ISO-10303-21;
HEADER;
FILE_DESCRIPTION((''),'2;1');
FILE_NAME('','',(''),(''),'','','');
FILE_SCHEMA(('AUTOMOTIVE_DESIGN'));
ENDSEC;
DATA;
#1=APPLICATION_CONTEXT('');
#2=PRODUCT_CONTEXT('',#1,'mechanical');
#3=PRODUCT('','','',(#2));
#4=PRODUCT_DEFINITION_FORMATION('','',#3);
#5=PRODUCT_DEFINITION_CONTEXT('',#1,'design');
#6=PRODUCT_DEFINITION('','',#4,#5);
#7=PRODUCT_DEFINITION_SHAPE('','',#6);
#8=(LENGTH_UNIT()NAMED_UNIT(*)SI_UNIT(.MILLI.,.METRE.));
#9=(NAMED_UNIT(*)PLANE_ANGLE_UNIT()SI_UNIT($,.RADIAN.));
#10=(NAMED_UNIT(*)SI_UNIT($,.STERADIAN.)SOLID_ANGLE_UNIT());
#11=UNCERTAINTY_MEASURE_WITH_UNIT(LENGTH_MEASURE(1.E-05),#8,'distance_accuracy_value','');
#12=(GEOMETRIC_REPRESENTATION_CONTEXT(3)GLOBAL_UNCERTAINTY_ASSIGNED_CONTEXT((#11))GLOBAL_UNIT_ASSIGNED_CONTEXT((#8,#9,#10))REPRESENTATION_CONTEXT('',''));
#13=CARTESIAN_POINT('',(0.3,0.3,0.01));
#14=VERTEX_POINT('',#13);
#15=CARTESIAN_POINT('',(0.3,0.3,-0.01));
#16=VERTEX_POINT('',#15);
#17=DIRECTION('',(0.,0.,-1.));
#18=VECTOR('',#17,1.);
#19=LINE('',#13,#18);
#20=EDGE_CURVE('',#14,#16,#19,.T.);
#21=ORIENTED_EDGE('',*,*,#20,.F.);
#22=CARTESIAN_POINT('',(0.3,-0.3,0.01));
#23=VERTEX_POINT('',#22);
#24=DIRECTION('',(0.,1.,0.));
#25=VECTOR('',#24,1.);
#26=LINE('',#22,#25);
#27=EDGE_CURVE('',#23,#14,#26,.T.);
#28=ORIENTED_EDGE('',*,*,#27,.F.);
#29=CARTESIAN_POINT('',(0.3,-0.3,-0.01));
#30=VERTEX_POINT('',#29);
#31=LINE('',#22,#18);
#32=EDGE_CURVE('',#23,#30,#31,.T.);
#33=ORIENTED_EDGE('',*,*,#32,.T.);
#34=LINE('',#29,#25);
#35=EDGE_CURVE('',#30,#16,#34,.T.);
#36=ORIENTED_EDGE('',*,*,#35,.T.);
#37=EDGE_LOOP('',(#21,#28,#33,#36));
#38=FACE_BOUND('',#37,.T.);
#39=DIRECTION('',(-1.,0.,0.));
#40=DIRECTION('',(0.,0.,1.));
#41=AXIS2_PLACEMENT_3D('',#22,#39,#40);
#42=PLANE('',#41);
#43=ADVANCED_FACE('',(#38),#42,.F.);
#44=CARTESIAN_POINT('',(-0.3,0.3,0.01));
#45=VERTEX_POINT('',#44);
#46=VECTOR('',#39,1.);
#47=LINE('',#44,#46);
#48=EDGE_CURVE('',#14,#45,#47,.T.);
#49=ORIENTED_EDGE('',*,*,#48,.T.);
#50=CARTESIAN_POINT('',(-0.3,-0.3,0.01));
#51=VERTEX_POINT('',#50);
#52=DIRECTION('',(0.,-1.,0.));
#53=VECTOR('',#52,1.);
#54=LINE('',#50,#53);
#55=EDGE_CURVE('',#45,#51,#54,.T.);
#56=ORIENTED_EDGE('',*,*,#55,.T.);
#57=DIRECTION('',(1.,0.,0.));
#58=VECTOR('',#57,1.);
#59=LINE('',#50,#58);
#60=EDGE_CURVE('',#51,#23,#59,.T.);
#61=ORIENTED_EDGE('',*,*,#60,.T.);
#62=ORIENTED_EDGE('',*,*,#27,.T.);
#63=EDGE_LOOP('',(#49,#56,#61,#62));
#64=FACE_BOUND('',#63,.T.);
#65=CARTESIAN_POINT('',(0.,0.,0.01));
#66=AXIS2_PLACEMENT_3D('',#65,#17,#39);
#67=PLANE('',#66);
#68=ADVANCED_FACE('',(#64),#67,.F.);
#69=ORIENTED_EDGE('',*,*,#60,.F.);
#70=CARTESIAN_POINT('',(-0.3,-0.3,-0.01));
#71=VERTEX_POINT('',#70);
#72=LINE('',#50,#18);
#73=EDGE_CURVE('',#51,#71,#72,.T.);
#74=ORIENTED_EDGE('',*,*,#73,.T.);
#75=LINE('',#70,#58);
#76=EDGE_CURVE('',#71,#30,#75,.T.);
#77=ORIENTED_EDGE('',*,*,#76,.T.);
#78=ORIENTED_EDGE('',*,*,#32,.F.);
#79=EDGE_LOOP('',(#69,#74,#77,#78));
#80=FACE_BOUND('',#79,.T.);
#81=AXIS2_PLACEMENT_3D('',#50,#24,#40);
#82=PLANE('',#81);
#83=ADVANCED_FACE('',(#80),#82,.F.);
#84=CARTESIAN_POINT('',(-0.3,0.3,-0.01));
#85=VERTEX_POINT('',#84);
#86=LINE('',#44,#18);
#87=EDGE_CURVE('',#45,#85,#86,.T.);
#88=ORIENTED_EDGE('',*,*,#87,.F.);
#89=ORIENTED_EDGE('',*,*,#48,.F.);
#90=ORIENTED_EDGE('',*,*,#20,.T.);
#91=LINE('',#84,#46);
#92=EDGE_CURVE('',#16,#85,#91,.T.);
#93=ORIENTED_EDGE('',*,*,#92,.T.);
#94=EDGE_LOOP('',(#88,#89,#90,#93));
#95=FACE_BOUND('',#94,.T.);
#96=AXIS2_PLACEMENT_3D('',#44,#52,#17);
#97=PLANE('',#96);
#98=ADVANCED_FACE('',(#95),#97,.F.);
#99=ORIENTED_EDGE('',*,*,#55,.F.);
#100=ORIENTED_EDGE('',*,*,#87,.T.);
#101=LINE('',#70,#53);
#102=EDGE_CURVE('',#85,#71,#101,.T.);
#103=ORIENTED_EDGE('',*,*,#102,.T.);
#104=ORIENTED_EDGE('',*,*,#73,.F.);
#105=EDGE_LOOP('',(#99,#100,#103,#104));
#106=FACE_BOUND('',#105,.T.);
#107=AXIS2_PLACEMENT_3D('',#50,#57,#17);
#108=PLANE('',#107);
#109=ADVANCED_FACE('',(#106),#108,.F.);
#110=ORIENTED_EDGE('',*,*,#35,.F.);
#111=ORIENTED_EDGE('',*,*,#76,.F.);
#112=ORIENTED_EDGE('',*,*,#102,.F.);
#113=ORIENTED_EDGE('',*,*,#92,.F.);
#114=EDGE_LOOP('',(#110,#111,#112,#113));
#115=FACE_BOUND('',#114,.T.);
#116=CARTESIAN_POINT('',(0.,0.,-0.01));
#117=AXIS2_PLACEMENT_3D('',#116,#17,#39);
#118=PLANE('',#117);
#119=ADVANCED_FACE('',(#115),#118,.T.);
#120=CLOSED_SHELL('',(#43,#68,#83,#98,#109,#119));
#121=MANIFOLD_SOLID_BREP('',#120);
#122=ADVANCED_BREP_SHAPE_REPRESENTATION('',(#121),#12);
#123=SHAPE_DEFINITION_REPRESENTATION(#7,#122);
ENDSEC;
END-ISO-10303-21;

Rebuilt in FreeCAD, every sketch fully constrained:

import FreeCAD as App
import Part
import Sketcher

V = App.Vector
Q = App.Units.Quantity

doc = App.newDocument("Part")
params = doc.addObject("Spreadsheet::Sheet", "Params")
for row, (alias, value) in enumerate([
    ("sketch1_width", "0.6 mm"),
    ("pad1_length", "0.02 mm"),
], start=1):
    params.set(f"A{row}", alias)
    params.set(f"B{row}", "=" + value)
    params.setAlias(f"B{row}", alias)

body = doc.addObject("PartDesign::Body", "Body")

sketch1 = doc.addObject("Sketcher::SketchObject", "Sketch")
body.addObject(sketch1)
sketch1.AttachmentSupport = (doc.XY_Plane, [""])
sketch1.MapMode = "FlatFace"
sketch1.addGeometry([
    Part.LineSegment(V(-0.3, 0.3, 0), V(-0.3, -0.3, 0)),
    Part.LineSegment(V(-0.3, -0.3, 0), V(0.3, -0.3, 0)),
    Part.LineSegment(V(0.3, -0.3, 0), V(0.3, 0.3, 0)),
    Part.LineSegment(V(0.3, 0.3, 0), V(-0.3, 0.3, 0)),
], False)
sketch1.addConstraint([
    Sketcher.Constraint("Coincident", 0, 2, 1, 1),
    Sketcher.Constraint("Coincident", 1, 2, 2, 1),
    Sketcher.Constraint("Coincident", 2, 2, 3, 1),
    Sketcher.Constraint("Coincident", 3, 2, 0, 1),
    Sketcher.Constraint("Vertical", 0),
    Sketcher.Constraint("Horizontal", 1),
    Sketcher.Constraint("Vertical", 2),
    Sketcher.Constraint("Horizontal", 3),
    Sketcher.Constraint("Symmetric", 0, 2, 2, 2, -1, 1),
    Sketcher.Constraint("Equal", 3, 0),
    Sketcher.Constraint("DistanceX", 1, 1, 1, 2, Q("0.6 mm")),
])
sketch1.setExpression("Constraints[10]", "Params.sketch1_width")
pad1 = doc.addObject("PartDesign::Pad", "Pad")
body.addObject(pad1)
pad1.Profile = sketch1
pad1.setExpression("Length", "Params.pad1_length")
pad1.Midplane = True

doc.recompute()
